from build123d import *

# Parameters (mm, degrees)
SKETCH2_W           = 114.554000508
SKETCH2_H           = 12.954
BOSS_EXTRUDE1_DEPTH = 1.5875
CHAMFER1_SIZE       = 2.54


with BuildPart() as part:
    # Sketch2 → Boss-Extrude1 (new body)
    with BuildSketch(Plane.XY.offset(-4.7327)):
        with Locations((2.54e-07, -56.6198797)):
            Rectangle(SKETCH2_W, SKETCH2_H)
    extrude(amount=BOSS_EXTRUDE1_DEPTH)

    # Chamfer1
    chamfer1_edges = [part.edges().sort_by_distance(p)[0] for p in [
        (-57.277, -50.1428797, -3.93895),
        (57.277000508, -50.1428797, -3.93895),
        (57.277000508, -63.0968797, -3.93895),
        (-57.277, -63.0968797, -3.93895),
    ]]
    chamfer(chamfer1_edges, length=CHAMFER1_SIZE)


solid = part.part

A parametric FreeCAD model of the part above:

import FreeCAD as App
import Part
import Sketcher
Q = App.Units.Quantity


def edges_at(feature, points):
    """Names of the edges that pass closest to the given points."""
    edges = feature.Shape.Edges
    near = lambda p: min(range(len(edges)), key=lambda i: edges[i].distToShape(Part.Vertex(*p))[0])
    return sorted({f"Edge{near(p) + 1}" for p in points})

doc = App.newDocument("Part")
body = doc.addObject("PartDesign::Body", "Body")

# Sketch on XY plane
sketch1 = body.newObject("Sketcher::SketchObject", "Sketch")
sketch1.AttachmentSupport = (doc.getObject("XY_Plane"), [""])
sketch1.MapMode = "FlatFace"
sketch1.AttachmentOffset = App.Placement(App.Vector(0, 0, -4.7327), App.Rotation())
sketch1.addGeometry([
    Part.LineSegment(App.Vector(-57, -50, 0), App.Vector(-57, -63, 0)),
    Part.LineSegment(App.Vector(-57, -63, 0), App.Vector(57, -63, 0)),
    Part.LineSegment(App.Vector(57, -63, 0), App.Vector(57, -50, 0)),
    Part.LineSegment(App.Vector(57, -50, 0), App.Vector(-57, -50, 0)),
], False)
sketch1.addConstraint([
    Sketcher.Constraint("Coincident", 0, 2, 1, 1),
    Sketcher.Constraint("Coincident", 1, 2, 2, 1),
    Sketcher.Constraint("Coincident", 2, 2, 3, 1),
    Sketcher.Constraint("Coincident", 3, 2, 0, 1),
    Sketcher.Constraint("Vertical", 0),
    Sketcher.Constraint("Horizontal", 1),
    Sketcher.Constraint("Vertical", 2),
    Sketcher.Constraint("Horizontal", 3),
    Sketcher.Constraint("DistanceX", 1, 1, 1, 2, Q("4.51 in")),
    Sketcher.Constraint("DistanceY", 0, 2, 0, 1, Q("0.51 in")),
    Sketcher.Constraint("DistanceX", 0, 2, -1, 1, Q("2.255 in")),
    Sketcher.Constraint("DistanceY", 0, 2, -1, 1, 63.09688),
])
pad1 = body.newObject("PartDesign::Pad", "Pad")
pad1.Profile = sketch1
pad1.Length = Q("0.0625 in")
doc.recompute()

chamfer = body.newObject("PartDesign::Chamfer", "Chamfer")
chamfer.Base = (pad1, edges_at(pad1, [
    (-57.277, -50.143, -3.939),
    (57.277, -50.143, -3.939),
    (57.277, -63.097, -3.939),
    (-57.277, -63.097, -3.939),
]))
chamfer.Size = Q("0.1 in")

doc.recompute()
